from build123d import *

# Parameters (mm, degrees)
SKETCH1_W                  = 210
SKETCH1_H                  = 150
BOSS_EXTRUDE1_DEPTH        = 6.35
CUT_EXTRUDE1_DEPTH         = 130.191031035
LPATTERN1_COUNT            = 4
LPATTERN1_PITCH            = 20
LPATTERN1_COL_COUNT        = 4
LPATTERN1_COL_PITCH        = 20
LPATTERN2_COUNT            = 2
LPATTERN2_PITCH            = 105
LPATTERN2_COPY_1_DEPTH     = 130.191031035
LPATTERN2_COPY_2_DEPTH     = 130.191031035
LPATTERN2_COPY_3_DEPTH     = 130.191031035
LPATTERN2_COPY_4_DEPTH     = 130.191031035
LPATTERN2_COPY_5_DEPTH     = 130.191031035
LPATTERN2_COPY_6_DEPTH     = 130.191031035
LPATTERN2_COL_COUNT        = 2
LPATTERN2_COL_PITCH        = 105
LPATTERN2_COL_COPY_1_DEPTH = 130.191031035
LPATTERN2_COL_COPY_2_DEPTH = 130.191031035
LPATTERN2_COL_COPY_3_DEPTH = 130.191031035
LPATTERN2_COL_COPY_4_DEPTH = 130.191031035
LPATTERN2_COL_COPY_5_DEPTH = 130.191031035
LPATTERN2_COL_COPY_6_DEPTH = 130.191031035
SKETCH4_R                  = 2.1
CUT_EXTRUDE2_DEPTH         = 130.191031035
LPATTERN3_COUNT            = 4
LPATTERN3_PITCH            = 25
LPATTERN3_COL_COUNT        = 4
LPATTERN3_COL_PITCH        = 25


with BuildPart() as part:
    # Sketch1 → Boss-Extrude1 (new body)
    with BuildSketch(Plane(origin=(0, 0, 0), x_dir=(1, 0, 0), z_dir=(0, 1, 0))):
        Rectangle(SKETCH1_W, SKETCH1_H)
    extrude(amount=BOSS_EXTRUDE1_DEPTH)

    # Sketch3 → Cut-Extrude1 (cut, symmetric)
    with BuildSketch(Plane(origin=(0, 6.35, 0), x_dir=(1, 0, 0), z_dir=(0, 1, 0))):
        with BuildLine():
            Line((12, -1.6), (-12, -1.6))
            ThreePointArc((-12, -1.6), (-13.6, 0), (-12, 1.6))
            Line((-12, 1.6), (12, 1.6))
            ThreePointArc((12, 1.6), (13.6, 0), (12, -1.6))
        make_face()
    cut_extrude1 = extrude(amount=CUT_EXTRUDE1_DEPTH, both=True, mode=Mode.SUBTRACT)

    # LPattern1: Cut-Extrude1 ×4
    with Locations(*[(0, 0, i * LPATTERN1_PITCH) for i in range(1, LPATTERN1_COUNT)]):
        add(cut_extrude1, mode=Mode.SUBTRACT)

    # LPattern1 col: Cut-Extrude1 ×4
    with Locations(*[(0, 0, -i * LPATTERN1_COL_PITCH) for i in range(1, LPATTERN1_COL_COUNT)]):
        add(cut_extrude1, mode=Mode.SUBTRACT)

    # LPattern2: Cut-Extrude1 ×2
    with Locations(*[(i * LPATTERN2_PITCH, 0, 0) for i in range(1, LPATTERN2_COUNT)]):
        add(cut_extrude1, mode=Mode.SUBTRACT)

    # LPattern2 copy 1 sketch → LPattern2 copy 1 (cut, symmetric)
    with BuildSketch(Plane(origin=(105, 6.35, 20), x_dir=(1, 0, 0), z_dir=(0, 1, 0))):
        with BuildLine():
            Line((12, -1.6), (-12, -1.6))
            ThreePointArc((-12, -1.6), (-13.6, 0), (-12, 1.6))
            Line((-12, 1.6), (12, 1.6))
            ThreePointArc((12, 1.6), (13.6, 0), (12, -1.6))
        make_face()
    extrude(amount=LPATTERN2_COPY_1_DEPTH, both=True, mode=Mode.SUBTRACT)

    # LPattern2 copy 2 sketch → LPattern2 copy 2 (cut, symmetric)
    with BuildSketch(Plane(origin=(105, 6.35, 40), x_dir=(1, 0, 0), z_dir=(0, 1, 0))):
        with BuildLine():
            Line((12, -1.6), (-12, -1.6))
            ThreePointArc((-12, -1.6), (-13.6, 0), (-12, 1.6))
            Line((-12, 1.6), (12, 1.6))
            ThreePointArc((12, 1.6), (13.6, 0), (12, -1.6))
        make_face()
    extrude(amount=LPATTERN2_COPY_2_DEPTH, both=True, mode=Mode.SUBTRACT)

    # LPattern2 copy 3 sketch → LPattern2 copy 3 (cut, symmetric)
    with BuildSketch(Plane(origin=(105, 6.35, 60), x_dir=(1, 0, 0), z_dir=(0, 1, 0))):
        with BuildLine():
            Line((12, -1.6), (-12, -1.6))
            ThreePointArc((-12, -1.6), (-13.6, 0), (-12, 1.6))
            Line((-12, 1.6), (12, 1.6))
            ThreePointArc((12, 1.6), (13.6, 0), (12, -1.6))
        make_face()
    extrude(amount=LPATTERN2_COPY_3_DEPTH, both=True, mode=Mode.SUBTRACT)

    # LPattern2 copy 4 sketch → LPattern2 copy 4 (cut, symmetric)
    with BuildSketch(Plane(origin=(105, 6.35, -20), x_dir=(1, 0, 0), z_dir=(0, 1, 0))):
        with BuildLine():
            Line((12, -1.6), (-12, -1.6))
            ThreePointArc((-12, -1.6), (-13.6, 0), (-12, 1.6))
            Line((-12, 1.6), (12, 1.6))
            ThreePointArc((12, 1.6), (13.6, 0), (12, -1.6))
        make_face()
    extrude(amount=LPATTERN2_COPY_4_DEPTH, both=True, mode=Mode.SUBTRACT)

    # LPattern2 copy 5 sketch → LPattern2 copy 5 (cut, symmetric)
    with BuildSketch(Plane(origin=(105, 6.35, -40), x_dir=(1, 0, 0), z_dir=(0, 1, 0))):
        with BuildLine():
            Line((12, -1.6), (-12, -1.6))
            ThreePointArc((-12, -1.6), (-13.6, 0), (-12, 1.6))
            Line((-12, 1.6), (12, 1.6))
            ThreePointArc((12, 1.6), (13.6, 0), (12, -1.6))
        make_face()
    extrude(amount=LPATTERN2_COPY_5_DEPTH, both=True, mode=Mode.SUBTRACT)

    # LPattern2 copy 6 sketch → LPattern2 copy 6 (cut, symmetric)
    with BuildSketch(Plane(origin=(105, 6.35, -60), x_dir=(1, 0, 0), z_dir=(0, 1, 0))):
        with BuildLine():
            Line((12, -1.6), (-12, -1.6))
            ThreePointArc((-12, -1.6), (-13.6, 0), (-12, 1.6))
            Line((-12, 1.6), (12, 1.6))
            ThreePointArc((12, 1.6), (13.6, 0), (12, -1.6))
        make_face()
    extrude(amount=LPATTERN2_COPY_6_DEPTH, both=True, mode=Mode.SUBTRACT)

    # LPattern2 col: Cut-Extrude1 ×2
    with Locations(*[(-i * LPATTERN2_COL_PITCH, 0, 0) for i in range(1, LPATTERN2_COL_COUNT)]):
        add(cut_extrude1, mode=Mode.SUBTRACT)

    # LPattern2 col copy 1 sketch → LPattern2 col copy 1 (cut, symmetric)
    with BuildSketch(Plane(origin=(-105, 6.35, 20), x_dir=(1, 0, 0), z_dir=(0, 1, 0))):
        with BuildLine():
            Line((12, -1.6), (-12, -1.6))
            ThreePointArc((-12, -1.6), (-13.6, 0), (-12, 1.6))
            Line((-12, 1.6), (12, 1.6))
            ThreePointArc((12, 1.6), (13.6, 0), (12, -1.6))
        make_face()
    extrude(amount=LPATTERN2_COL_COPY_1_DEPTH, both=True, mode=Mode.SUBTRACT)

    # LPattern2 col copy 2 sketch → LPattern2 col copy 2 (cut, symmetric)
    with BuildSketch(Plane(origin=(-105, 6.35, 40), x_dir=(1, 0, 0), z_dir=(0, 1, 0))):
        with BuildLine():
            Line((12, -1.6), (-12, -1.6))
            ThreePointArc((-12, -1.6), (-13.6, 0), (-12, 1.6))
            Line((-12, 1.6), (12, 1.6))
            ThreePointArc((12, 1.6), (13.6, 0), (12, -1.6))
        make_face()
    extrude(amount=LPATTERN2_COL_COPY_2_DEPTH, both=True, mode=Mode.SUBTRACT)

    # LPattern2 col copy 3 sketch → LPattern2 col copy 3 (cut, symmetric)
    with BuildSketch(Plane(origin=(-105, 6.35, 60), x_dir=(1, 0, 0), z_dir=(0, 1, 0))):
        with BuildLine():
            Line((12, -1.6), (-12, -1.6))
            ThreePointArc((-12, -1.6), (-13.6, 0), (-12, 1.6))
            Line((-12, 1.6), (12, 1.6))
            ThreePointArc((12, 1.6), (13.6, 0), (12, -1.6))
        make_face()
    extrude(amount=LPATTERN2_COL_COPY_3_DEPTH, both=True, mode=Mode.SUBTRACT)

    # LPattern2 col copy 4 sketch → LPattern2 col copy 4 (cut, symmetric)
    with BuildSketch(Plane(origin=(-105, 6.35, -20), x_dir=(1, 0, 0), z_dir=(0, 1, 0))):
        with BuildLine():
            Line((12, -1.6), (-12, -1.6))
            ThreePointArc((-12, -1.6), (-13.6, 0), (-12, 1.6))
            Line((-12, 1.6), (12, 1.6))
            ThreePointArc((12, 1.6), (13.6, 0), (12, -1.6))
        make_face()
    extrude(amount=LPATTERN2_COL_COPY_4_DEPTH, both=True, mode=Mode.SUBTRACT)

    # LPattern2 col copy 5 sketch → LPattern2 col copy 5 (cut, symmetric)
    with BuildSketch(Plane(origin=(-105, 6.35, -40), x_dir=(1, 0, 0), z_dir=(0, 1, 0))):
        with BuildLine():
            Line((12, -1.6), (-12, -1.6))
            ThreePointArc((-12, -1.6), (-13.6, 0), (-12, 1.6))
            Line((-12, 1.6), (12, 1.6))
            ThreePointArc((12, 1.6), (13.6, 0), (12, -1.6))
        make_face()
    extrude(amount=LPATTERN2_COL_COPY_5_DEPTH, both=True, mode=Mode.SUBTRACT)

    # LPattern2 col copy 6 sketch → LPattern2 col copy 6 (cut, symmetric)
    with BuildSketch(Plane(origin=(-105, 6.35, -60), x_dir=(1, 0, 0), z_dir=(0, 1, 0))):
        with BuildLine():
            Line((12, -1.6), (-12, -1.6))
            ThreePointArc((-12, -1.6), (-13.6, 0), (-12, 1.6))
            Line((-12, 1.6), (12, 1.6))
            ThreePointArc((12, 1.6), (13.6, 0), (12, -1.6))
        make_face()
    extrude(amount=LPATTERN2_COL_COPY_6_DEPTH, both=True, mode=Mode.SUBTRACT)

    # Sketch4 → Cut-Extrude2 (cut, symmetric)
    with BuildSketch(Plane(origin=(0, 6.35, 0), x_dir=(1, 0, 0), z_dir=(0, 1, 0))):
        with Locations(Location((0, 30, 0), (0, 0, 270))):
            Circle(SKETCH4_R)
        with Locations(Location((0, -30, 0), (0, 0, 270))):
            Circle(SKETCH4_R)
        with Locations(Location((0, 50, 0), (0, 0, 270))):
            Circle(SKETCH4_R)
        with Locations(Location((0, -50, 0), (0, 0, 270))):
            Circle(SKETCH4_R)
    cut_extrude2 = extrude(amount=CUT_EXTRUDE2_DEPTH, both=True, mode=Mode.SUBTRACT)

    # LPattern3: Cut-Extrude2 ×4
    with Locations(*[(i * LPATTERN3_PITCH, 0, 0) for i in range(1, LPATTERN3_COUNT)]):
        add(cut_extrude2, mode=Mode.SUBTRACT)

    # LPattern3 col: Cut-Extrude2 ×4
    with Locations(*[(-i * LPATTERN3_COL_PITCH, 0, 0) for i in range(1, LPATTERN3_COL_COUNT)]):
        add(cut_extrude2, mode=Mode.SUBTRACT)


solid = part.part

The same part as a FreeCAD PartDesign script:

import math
import FreeCAD as App
import Part
import Sketcher
Q = App.Units.Quantity

doc = App.newDocument("Part")
body = doc.addObject("PartDesign::Body", "Body")

# Sketch on XZ plane
sketch1 = body.newObject("Sketcher::SketchObject", "Sketch")
sketch1.AttachmentSupport = (doc.getObject("XZ_Plane"), [""])
sketch1.MapMode = "FlatFace"
sketch1.addGeometry(Part.LineSegment(App.Vector(-105, -75, 0), App.Vector(-105, 75, 0)), False)
sketch1.addGeometry(Part.LineSegment(App.Vector(-105, 75, 0), App.Vector(105, 75, 0)), False)
sketch1.addGeometry(Part.LineSegment(App.Vector(105, 75, 0), App.Vector(105, -75, 0)), False)
sketch1.addGeometry(Part.LineSegment(App.Vector(105, -75, 0), App.Vector(-105, -75, 0)), False)
sketch1.addConstraint(Sketcher.Constraint("Coincident", 0, 2, 1, 1))
sketch1.addConstraint(Sketcher.Constraint("Coincident", 1, 2, 2, 1))
sketch1.addConstraint(Sketcher.Constraint("Coincident", 2, 2, 3, 1))
sketch1.addConstraint(Sketcher.Constraint("Coincident", 3, 2, 0, 1))
sketch1.addConstraint(Sketcher.Constraint("Vertical", 0))
sketch1.addConstraint(Sketcher.Constraint("Horizontal", 1))
sketch1.addConstraint(Sketcher.Constraint("Vertical", 2))
sketch1.addConstraint(Sketcher.Constraint("Horizontal", 3))
sketch1.addConstraint(Sketcher.Constraint("Symmetric", 0, 2, 2, 2, -1, 1))
sketch1.addConstraint(Sketcher.Constraint("DistanceX", 1, 1, 1, 2, Q("210 mm")))
sketch1.addConstraint(Sketcher.Constraint("DistanceY", 0, 1, 0, 2, Q("150 mm")))
pad1 = body.newObject("PartDesign::Pad", "Pad")
pad1.Profile = sketch1
pad1.Length = 6.35
pad1.Reversed = True

# Sketch on XZ plane
sketch2 = body.newObject("Sketcher::SketchObject", "Sketch001")
sketch2.AttachmentSupport = (doc.getObject("XZ_Plane"), [""])
sketch2.MapMode = "FlatFace"
sketch2.AttachmentOffset = App.Placement(App.Vector(0, 0, -6.35), App.Rotation())
sketch2.addGeometry(Part.LineSegment(App.Vector(-12, 1.6, 0), App.Vector(12, 1.6, 0)), False)
sketch2.addGeometry(Part.ArcOfCircle(Part.Circle(App.Vector(12, 0, 0), App.Vector(0, 0, 1), 1.6), math.radians(-90), math.radians(90)), False)
sketch2.addGeometry(Part.LineSegment(App.Vector(12, -1.6, 0), App.Vector(-12, -1.6, 0)), False)
sketch2.addGeometry(Part.ArcOfCircle(Part.Circle(App.Vector(-12, 0, 0), App.Vector(0, 0, 1), 1.6), math.radians(90), math.radians(270)), False)
sketch2.addConstraint(Sketcher.Constraint("Tangent", 0, 2, 1, 2))
sketch2.addConstraint(Sketcher.Constraint("Tangent", 1, 1, 2, 1))
sketch2.addConstraint(Sketcher.Constraint("Tangent", 2, 2, 3, 2))
sketch2.addConstraint(Sketcher.Constraint("Tangent", 3, 1, 0, 1))
sketch2.addConstraint(Sketcher.Constraint("Horizontal", 0))
sketch2.addConstraint(Sketcher.Constraint("Horizontal", 2))
sketch2.addConstraint(Sketcher.Constraint("Symmetric", 1, 3, 3, 3, -1, 1))
sketch2.addConstraint(Sketcher.Constraint("Radius", 1, Q("1.6 mm")))
sketch2.addConstraint(Sketcher.Constraint("DistanceX", 0, 1, 0, 2, Q("24 mm")))
pocket1 = body.newObject("PartDesign::Pocket", "Pocket")
pocket1.Profile = sketch2
pocket1.Length = 260.382062
pocket1.Midplane = True
doc.recompute()

linearpattern = body.newObject("PartDesign::LinearPattern", "LinearPattern")
linearpattern.Originals = [pocket1]
linearpattern.Direction = (doc.getObject("Z_Axis"), [""])
linearpattern.Mode = "offset"
linearpattern.Offset = 20
linearpattern.Occurrences = 4
body.Tip = linearpattern
doc.recompute()

linearpattern2 = body.newObject("PartDesign::LinearPattern", "LinearPattern001")
linearpattern2.Originals = [pocket1]
linearpattern2.Direction = (doc.getObject("Z_Axis"), [""])
linearpattern2.Mode = "offset"
linearpattern2.Offset = 20
linearpattern2.Occurrences = 4
linearpattern2.Reversed = True
body.Tip = linearpattern2
doc.recompute()

linearpattern3 = body.newObject("PartDesign::LinearPattern", "LinearPattern002")
linearpattern3.Originals = [pocket1]
linearpattern3.Direction = (doc.getObject("X_Axis"), [""])
linearpattern3.Mode = "offset"
linearpattern3.Offset = 105
linearpattern3.Occurrences = 2
body.Tip = linearpattern3

# Sketch on XZ plane
sketch3 = body.newObject("Sketcher::SketchObject", "Sketch002")
sketch3.AttachmentSupport = (doc.getObject("XZ_Plane"), [""])
sketch3.MapMode = "FlatFace"
sketch3.AttachmentOffset = App.Placement(App.Vector(0, 0, -6.35), App.Rotation())
sketch3.addGeometry(Part.LineSegment(App.Vector(93, 21.6, 0), App.Vector(117, 21.6, 0)), False)
sketch3.addGeometry(Part.ArcOfCircle(Part.Circle(App.Vector(117, 20, 0), App.Vector(0, 0, 1), 1.6), math.radians(-90), math.radians(90)), False)
sketch3.addGeometry(Part.LineSegment(App.Vector(117, 18.4, 0), App.Vector(93, 18.4, 0)), False)
sketch3.addGeometry(Part.ArcOfCircle(Part.Circle(App.Vector(93, 20, 0), App.Vector(0, 0, 1), 1.6), math.radians(90), math.radians(270)), False)
sketch3.addConstraint(Sketcher.Constraint("Tangent", 0, 2, 1, 2))
sketch3.addConstraint(Sketcher.Constraint("Tangent", 1, 1, 2, 1))
sketch3.addConstraint(Sketcher.Constraint("Tangent", 2, 2, 3, 2))
sketch3.addConstraint(Sketcher.Constraint("Tangent", 3, 1, 0, 1))
sketch3.addConstraint(Sketcher.Constraint("Horizontal", 0))
sketch3.addConstraint(Sketcher.Constraint("Horizontal", 2))
sketch3.addConstraint(Sketcher.Constraint("Radius", 1, Q("1.6 mm")))
sketch3.addConstraint(Sketcher.Constraint("DistanceX", 0, 1, 0, 2, Q("24 mm")))
sketch3.addConstraint(Sketcher.Constraint("DistanceX", -1, 1, 1, 3, Q("117 mm")))
sketch3.addConstraint(Sketcher.Constraint("DistanceY", -1, 1, 1, 3, Q("20 mm")))
pocket2 = body.newObject("PartDesign::Pocket", "Pocket001")
pocket2.Profile = sketch3
pocket2.Length = 260.382062
pocket2.Midplane = True

# Sketch on XZ plane
sketch4 = body.newObject("Sketcher::SketchObject", "Sketch003")
sketch4.AttachmentSupport = (doc.getObject("XZ_Plane"), [""])
sketch4.MapMode = "FlatFace"
sketch4.AttachmentOffset = App.Placement(App.Vector(0, 0, -6.35), App.Rotation())
sketch4.addGeometry(Part.LineSegment(App.Vector(93, 41.6, 0), App.Vector(117, 41.6, 0)), False)
sketch4.addGeometry(Part.ArcOfCircle(Part.Circle(App.Vector(117, 40, 0), App.Vector(0, 0, 1), 1.6), math.radians(-90), math.radians(90)), False)
sketch4.addGeometry(Part.LineSegment(App.Vector(117, 38.4, 0), App.Vector(93, 38.4, 0)), False)
sketch4.addGeometry(Part.ArcOfCircle(Part.Circle(App.Vector(93, 40, 0), App.Vector(0, 0, 1), 1.6), math.radians(90), math.radians(270)), False)
sketch4.addConstraint(Sketcher.Constraint("Tangent", 0, 2, 1, 2))
sketch4.addConstraint(Sketcher.Constraint("Tangent", 1, 1, 2, 1))
sketch4.addConstraint(Sketcher.Constraint("Tangent", 2, 2, 3, 2))
sketch4.addConstraint(Sketcher.Constraint("Tangent", 3, 1, 0, 1))
sketch4.addConstraint(Sketcher.Constraint("Horizontal", 0))
sketch4.addConstraint(Sketcher.Constraint("Horizontal", 2))
sketch4.addConstraint(Sketcher.Constraint("Radius", 1, Q("1.6 mm")))
sketch4.addConstraint(Sketcher.Constraint("DistanceX", 0, 1, 0, 2, Q("24 mm")))
sketch4.addConstraint(Sketcher.Constraint("DistanceX", -1, 1, 1, 3, Q("117 mm")))
sketch4.addConstraint(Sketcher.Constraint("DistanceY", -1, 1, 1, 3, Q("40 mm")))
pocket3 = body.newObject("PartDesign::Pocket", "Pocket002")
pocket3.Profile = sketch4
pocket3.Length = 260.382062
pocket3.Midplane = True

# Sketch on XZ plane
sketch5 = body.newObject("Sketcher::SketchObject", "Sketch004")
sketch5.AttachmentSupport = (doc.getObject("XZ_Plane"), [""])
sketch5.MapMode = "FlatFace"
sketch5.AttachmentOffset = App.Placement(App.Vector(0, 0, -6.35), App.Rotation())
sketch5.addGeometry(Part.LineSegment(App.Vector(93, 61.6, 0), App.Vector(117, 61.6, 0)), False)
sketch5.addGeometry(Part.ArcOfCircle(Part.Circle(App.Vector(117, 60, 0), App.Vector(0, 0, 1), 1.6), math.radians(-90), math.radians(90)), False)
sketch5.addGeometry(Part.LineSegment(App.Vector(117, 58.4, 0), App.Vector(93, 58.4, 0)), False)
sketch5.addGeometry(Part.ArcOfCircle(Part.Circle(App.Vector(93, 60, 0), App.Vector(0, 0, 1), 1.6), math.radians(90), math.radians(270)), False)
sketch5.addConstraint(Sketcher.Constraint("Tangent", 0, 2, 1, 2))
sketch5.addConstraint(Sketcher.Constraint("Tangent", 1, 1, 2, 1))
sketch5.addConstraint(Sketcher.Constraint("Tangent", 2, 2, 3, 2))
sketch5.addConstraint(Sketcher.Constraint("Tangent", 3, 1, 0, 1))
sketch5.addConstraint(Sketcher.Constraint("Horizontal", 0))
sketch5.addConstraint(Sketcher.Constraint("Horizontal", 2))
sketch5.addConstraint(Sketcher.Constraint("Radius", 1, Q("1.6 mm")))
sketch5.addConstraint(Sketcher.Constraint("DistanceX", 0, 1, 0, 2, Q("24 mm")))
sketch5.addConstraint(Sketcher.Constraint("DistanceX", -1, 1, 1, 3, Q("117 mm")))
sketch5.addConstraint(Sketcher.Constraint("DistanceY", -1, 1, 1, 3, Q("60 mm")))
pocket4 = body.newObject("PartDesign::Pocket", "Pocket003")
pocket4.Profile = sketch5
pocket4.Length = 260.382062
pocket4.Midplane = True

# Sketch on XZ plane
sketch6 = body.newObject("Sketcher::SketchObject", "Sketch005")
sketch6.AttachmentSupport = (doc.getObject("XZ_Plane"), [""])
sketch6.MapMode = "FlatFace"
sketch6.AttachmentOffset = App.Placement(App.Vector(0, 0, -6.35), App.Rotation())
sketch6.addGeometry(Part.LineSegment(App.Vector(93, -18.4, 0), App.Vector(117, -18.4, 0)), False)
sketch6.addGeometry(Part.ArcOfCircle(Part.Circle(App.Vector(117, -20, 0), App.Vector(0, 0, 1), 1.6), math.radians(-90), math.radians(90)), False)
sketch6.addGeometry(Part.LineSegment(App.Vector(117, -21.6, 0), App.Vector(93, -21.6, 0)), False)
sketch6.addGeometry(Part.ArcOfCircle(Part.Circle(App.Vector(93, -20, 0), App.Vector(0, 0, 1), 1.6), math.radians(90), math.radians(270)), False)
sketch6.addConstraint(Sketcher.Constraint("Tangent", 0, 2, 1, 2))
sketch6.addConstraint(Sketcher.Constraint("Tangent", 1, 1, 2, 1))
sketch6.addConstraint(Sketcher.Constraint("Tangent", 2, 2, 3, 2))
sketch6.addConstraint(Sketcher.Constraint("Tangent", 3, 1, 0, 1))
sketch6.addConstraint(Sketcher.Constraint("Horizontal", 0))
sketch6.addConstraint(Sketcher.Constraint("Horizontal", 2))
sketch6.addConstraint(Sketcher.Constraint("Radius", 1, Q("1.6 mm")))
sketch6.addConstraint(Sketcher.Constraint("DistanceX", 0, 1, 0, 2, Q("24 mm")))
sketch6.addConstraint(Sketcher.Constraint("DistanceX", -1, 1, 1, 3, Q("117 mm")))
sketch6.addConstraint(Sketcher.Constraint("DistanceY", 1, 3, -1, 1, Q("20 mm")))
pocket5 = body.newObject("PartDesign::Pocket", "Pocket004")
pocket5.Profile = sketch6
pocket5.Length = 260.382062
pocket5.Midplane = True

# Sketch on XZ plane
sketch7 = body.newObject("Sketcher::SketchObject", "Sketch006")
sketch7.AttachmentSupport = (doc.getObject("XZ_Plane"), [""])
sketch7.MapMode = "FlatFace"
sketch7.AttachmentOffset = App.Placement(App.Vector(0, 0, -6.35), App.Rotation())
sketch7.addGeometry(Part.LineSegment(App.Vector(93, -38.4, 0), App.Vector(117, -38.4, 0)), False)
sketch7.addGeometry(Part.ArcOfCircle(Part.Circle(App.Vector(117, -40, 0), App.Vector(0, 0, 1), 1.6), math.radians(-90), math.radians(90)), False)
sketch7.addGeometry(Part.LineSegment(App.Vector(117, -41.6, 0), App.Vector(93, -41.6, 0)), False)
sketch7.addGeometry(Part.ArcOfCircle(Part.Circle(App.Vector(93, -40, 0), App.Vector(0, 0, 1), 1.6), math.radians(90), math.radians(270)), False)
sketch7.addConstraint(Sketcher.Constraint("Tangent", 0, 2, 1, 2))
sketch7.addConstraint(Sketcher.Constraint("Tangent", 1, 1, 2, 1))
sketch7.addConstraint(Sketcher.Constraint("Tangent", 2, 2, 3, 2))
sketch7.addConstraint(Sketcher.Constraint("Tangent", 3, 1, 0, 1))
sketch7.addConstraint(Sketcher.Constraint("Horizontal", 0))
sketch7.addConstraint(Sketcher.Constraint("Horizontal", 2))
sketch7.addConstraint(Sketcher.Constraint("Radius", 1, Q("1.6 mm")))
sketch7.addConstraint(Sketcher.Constraint("DistanceX", 0, 1, 0, 2, Q("24 mm")))
sketch7.addConstraint(Sketcher.Constraint("DistanceX", -1, 1, 1, 3, Q("117 mm")))
sketch7.addConstraint(Sketcher.Constraint("DistanceY", 1, 3, -1, 1, Q("40 mm")))
pocket6 = body.newObject("PartDesign::Pocket", "Pocket005")
pocket6.Profile = sketch7
pocket6.Length = 260.382062
pocket6.Midplane = True

# Sketch on XZ plane
sketch8 = body.newObject("Sketcher::SketchObject", "Sketch007")
sketch8.AttachmentSupport = (doc.getObject("XZ_Plane"), [""])
sketch8.MapMode = "FlatFace"
sketch8.AttachmentOffset = App.Placement(App.Vector(0, 0, -6.35), App.Rotation())
sketch8.addGeometry(Part.LineSegment(App.Vector(93, -58.4, 0), App.Vector(117, -58.4, 0)), False)
sketch8.addGeometry(Part.ArcOfCircle(Part.Circle(App.Vector(117, -60, 0), App.Vector(0, 0, 1), 1.6), math.radians(-90), math.radians(90)), False)
sketch8.addGeometry(Part.LineSegment(App.Vector(117, -61.6, 0), App.Vector(93, -61.6, 0)), False)
sketch8.addGeometry(Part.ArcOfCircle(Part.Circle(App.Vector(93, -60, 0), App.Vector(0, 0, 1), 1.6), math.radians(90), math.radians(270)), False)
sketch8.addConstraint(Sketcher.Constraint("Tangent", 0, 2, 1, 2))
sketch8.addConstraint(Sketcher.Constraint("Tangent", 1, 1, 2, 1))
sketch8.addConstraint(Sketcher.Constraint("Tangent", 2, 2, 3, 2))
sketch8.addConstraint(Sketcher.Constraint("Tangent", 3, 1, 0, 1))
sketch8.addConstraint(Sketcher.Constraint("Horizontal", 0))
sketch8.addConstraint(Sketcher.Constraint("Horizontal", 2))
sketch8.addConstraint(Sketcher.Constraint("Radius", 1, Q("1.6 mm")))
sketch8.addConstraint(Sketcher.Constraint("DistanceX", 0, 1, 0, 2, Q("24 mm")))
sketch8.addConstraint(Sketcher.Constraint("DistanceX", -1, 1, 1, 3, Q("117 mm")))
sketch8.addConstraint(Sketcher.Constraint("DistanceY", 1, 3, -1, 1, Q("60 mm")))
pocket7 = body.newObject("PartDesign::Pocket", "Pocket006")
pocket7.Profile = sketch8
pocket7.Length = 260.382062
pocket7.Midplane = True
doc.recompute()

linearpattern4 = body.newObject("PartDesign::LinearPattern", "LinearPattern003")
linearpattern4.Originals = [pocket1]
linearpattern4.Direction = (doc.getObject("X_Axis"), [""])
linearpattern4.Mode = "offset"
linearpattern4.Offset = 105
linearpattern4.Occurrences = 2
linearpattern4.Reversed = True
body.Tip = linearpattern4

# Sketch on XZ plane
sketch9 = body.newObject("Sketcher::SketchObject", "Sketch008")
sketch9.AttachmentSupport = (doc.getObject("XZ_Plane"), [""])
sketch9.MapMode = "FlatFace"
sketch9.AttachmentOffset = App.Placement(App.Vector(0, 0, -6.35), App.Rotation())
sketch9.addGeometry(Part.LineSegment(App.Vector(-117, 21.6, 0), App.Vector(-93, 21.6, 0)), False)
sketch9.addGeometry(Part.ArcOfCircle(Part.Circle(App.Vector(-93, 20, 0), App.Vector(0, 0, 1), 1.6), math.radians(-90), math.radians(90)), False)
sketch9.addGeometry(Part.LineSegment(App.Vector(-93, 18.4, 0), App.Vector(-117, 18.4, 0)), False)
sketch9.addGeometry(Part.ArcOfCircle(Part.Circle(App.Vector(-117, 20, 0), App.Vector(0, 0, 1), 1.6), math.radians(90), math.radians(270)), False)
sketch9.addConstraint(Sketcher.Constraint("Tangent", 0, 2, 1, 2))
sketch9.addConstraint(Sketcher.Constraint("Tangent", 1, 1, 2, 1))
sketch9.addConstraint(Sketcher.Constraint("Tangent", 2, 2, 3, 2))
sketch9.addConstraint(Sketcher.Constraint("Tangent", 3, 1, 0, 1))
sketch9.addConstraint(Sketcher.Constraint("Horizontal", 0))
sketch9.addConstraint(Sketcher.Constraint("Horizontal", 2))
sketch9.addConstraint(Sketcher.Constraint("Radius", 1, Q("1.6 mm")))
sketch9.addConstraint(Sketcher.Constraint("DistanceX", 0, 1, 0, 2, Q("24 mm")))
sketch9.addConstraint(Sketcher.Constraint("DistanceX", 1, 3, -1, 1, Q("93 mm")))
sketch9.addConstraint(Sketcher.Constraint("DistanceY", -1, 1, 1, 3, Q("20 mm")))
pocket8 = body.newObject("PartDesign::Pocket", "Pocket007")
pocket8.Profile = sketch9
pocket8.Length = 260.382062
pocket8.Midplane = True

# Sketch on XZ plane
sketch10 = body.newObject("Sketcher::SketchObject", "Sketch009")
sketch10.AttachmentSupport = (doc.getObject("XZ_Plane"), [""])
sketch10.MapMode = "FlatFace"
sketch10.AttachmentOffset = App.Placement(App.Vector(0, 0, -6.35), App.Rotation())
sketch10.addGeometry(Part.LineSegment(App.Vector(-117, 41.6, 0), App.Vector(-93, 41.6, 0)), False)
sketch10.addGeometry(Part.ArcOfCircle(Part.Circle(App.Vector(-93, 40, 0), App.Vector(0, 0, 1), 1.6), math.radians(-90), math.radians(90)), False)
sketch10.addGeometry(Part.LineSegment(App.Vector(-93, 38.4, 0), App.Vector(-117, 38.4, 0)), False)
sketch10.addGeometry(Part.ArcOfCircle(Part.Circle(App.Vector(-117, 40, 0), App.Vector(0, 0, 1), 1.6), math.radians(90), math.radians(270)), False)
sketch10.addConstraint(Sketcher.Constraint("Tangent", 0, 2, 1, 2))
sketch10.addConstraint(Sketcher.Constraint("Tangent", 1, 1, 2, 1))
sketch10.addConstraint(Sketcher.Constraint("Tangent", 2, 2, 3, 2))
sketch10.addConstraint(Sketcher.Constraint("Tangent", 3, 1, 0, 1))
sketch10.addConstraint(Sketcher.Constraint("Horizontal", 0))
sketch10.addConstraint(Sketcher.Constraint("Horizontal", 2))
sketch10.addConstraint(Sketcher.Constraint("Radius", 1, Q("1.6 mm")))
sketch10.addConstraint(Sketcher.Constraint("DistanceX", 0, 1, 0, 2, Q("24 mm")))
sketch10.addConstraint(Sketcher.Constraint("DistanceX", 1, 3, -1, 1, Q("93 mm")))
sketch10.addConstraint(Sketcher.Constraint("DistanceY", -1, 1, 1, 3, Q("40 mm")))
pocket9 = body.newObject("PartDesign::Pocket", "Pocket008")
pocket9.Profile = sketch10
pocket9.Length = 260.382062
pocket9.Midplane = True

# Sketch on XZ plane
sketch11 = body.newObject("Sketcher::SketchObject", "Sketch010")
sketch11.AttachmentSupport = (doc.getObject("XZ_Plane"), [""])
sketch11.MapMode = "FlatFace"
sketch11.AttachmentOffset = App.Placement(App.Vector(0, 0, -6.35), App.Rotation())
sketch11.addGeometry(Part.LineSegment(App.Vector(-117, 61.6, 0), App.Vector(-93, 61.6, 0)), False)
sketch11.addGeometry(Part.ArcOfCircle(Part.Circle(App.Vector(-93, 60, 0), App.Vector(0, 0, 1), 1.6), math.radians(-90), math.radians(90)), False)
sketch11.addGeometry(Part.LineSegment(App.Vector(-93, 58.4, 0), App.Vector(-117, 58.4, 0)), False)
sketch11.addGeometry(Part.ArcOfCircle(Part.Circle(App.Vector(-117, 60, 0), App.Vector(0, 0, 1), 1.6), math.radians(90), math.radians(270)), False)
sketch11.addConstraint(Sketcher.Constraint("Tangent", 0, 2, 1, 2))
sketch11.addConstraint(Sketcher.Constraint("Tangent", 1, 1, 2, 1))
sketch11.addConstraint(Sketcher.Constraint("Tangent", 2, 2, 3, 2))
sketch11.addConstraint(Sketcher.Constraint("Tangent", 3, 1, 0, 1))
sketch11.addConstraint(Sketcher.Constraint("Horizontal", 0))
sketch11.addConstraint(Sketcher.Constraint("Horizontal", 2))
sketch11.addConstraint(Sketcher.Constraint("Radius", 1, Q("1.6 mm")))
sketch11.addConstraint(Sketcher.Constraint("DistanceX", 0, 1, 0, 2, Q("24 mm")))
sketch11.addConstraint(Sketcher.Constraint("DistanceX", 1, 3, -1, 1, Q("93 mm")))
sketch11.addConstraint(Sketcher.Constraint("DistanceY", -1, 1, 1, 3, Q("60 mm")))
pocket10 = body.newObject("PartDesign::Pocket", "Pocket009")
pocket10.Profile = sketch11
pocket10.Length = 260.382062
pocket10.Midplane = True

# Sketch on XZ plane
sketch12 = body.newObject("Sketcher::SketchObject", "Sketch011")
sketch12.AttachmentSupport = (doc.getObject("XZ_Plane"), [""])
sketch12.MapMode = "FlatFace"
sketch12.AttachmentOffset = App.Placement(App.Vector(0, 0, -6.35), App.Rotation())
sketch12.addGeometry(Part.LineSegment(App.Vector(-117, -18.4, 0), App.Vector(-93, -18.4, 0)), False)
sketch12.addGeometry(Part.ArcOfCircle(Part.Circle(App.Vector(-93, -20, 0), App.Vector(0, 0, 1), 1.6), math.radians(-90), math.radians(90)), False)
sketch12.addGeometry(Part.LineSegment(App.Vector(-93, -21.6, 0), App.Vector(-117, -21.6, 0)), False)
sketch12.addGeometry(Part.ArcOfCircle(Part.Circle(App.Vector(-117, -20, 0), App.Vector(0, 0, 1), 1.6), math.radians(90), math.radians(270)), False)
sketch12.addConstraint(Sketcher.Constraint("Tangent", 0, 2, 1, 2))
sketch12.addConstraint(Sketcher.Constraint("Tangent", 1, 1, 2, 1))
sketch12.addConstraint(Sketcher.Constraint("Tangent", 2, 2, 3, 2))
sketch12.addConstraint(Sketcher.Constraint("Tangent", 3, 1, 0, 1))
sketch12.addConstraint(Sketcher.Constraint("Horizontal", 0))
sketch12.addConstraint(Sketcher.Constraint("Horizontal", 2))
sketch12.addConstraint(Sketcher.Constraint("Radius", 1, Q("1.6 mm")))
sketch12.addConstraint(Sketcher.Constraint("DistanceX", 0, 1, 0, 2, Q("24 mm")))
sketch12.addConstraint(Sketcher.Constraint("DistanceX", 1, 3, -1, 1, Q("93 mm")))
sketch12.addConstraint(Sketcher.Constraint("DistanceY", 1, 3, -1, 1, Q("20 mm")))
pocket11 = body.newObject("PartDesign::Pocket", "Pocket010")
pocket11.Profile = sketch12
pocket11.Length = 260.382062
pocket11.Midplane = True

# Sketch on XZ plane
sketch13 = body.newObject("Sketcher::SketchObject", "Sketch012")
sketch13.AttachmentSupport = (doc.getObject("XZ_Plane"), [""])
sketch13.MapMode = "FlatFace"
sketch13.AttachmentOffset = App.Placement(App.Vector(0, 0, -6.35), App.Rotation())
sketch13.addGeometry(Part.LineSegment(App.Vector(-117, -38.4, 0), App.Vector(-93, -38.4, 0)), False)
sketch13.addGeometry(Part.ArcOfCircle(Part.Circle(App.Vector(-93, -40, 0), App.Vector(0, 0, 1), 1.6), math.radians(-90), math.radians(90)), False)
sketch13.addGeometry(Part.LineSegment(App.Vector(-93, -41.6, 0), App.Vector(-117, -41.6, 0)), False)
sketch13.addGeometry(Part.ArcOfCircle(Part.Circle(App.Vector(-117, -40, 0), App.Vector(0, 0, 1), 1.6), math.radians(90), math.radians(270)), False)
sketch13.addConstraint(Sketcher.Constraint("Tangent", 0, 2, 1, 2))
sketch13.addConstraint(Sketcher.Constraint("Tangent", 1, 1, 2, 1))
sketch13.addConstraint(Sketcher.Constraint("Tangent", 2, 2, 3, 2))
sketch13.addConstraint(Sketcher.Constraint("Tangent", 3, 1, 0, 1))
sketch13.addConstraint(Sketcher.Constraint("Horizontal", 0))
sketch13.addConstraint(Sketcher.Constraint("Horizontal", 2))
sketch13.addConstraint(Sketcher.Constraint("Radius", 1, Q("1.6 mm")))
sketch13.addConstraint(Sketcher.Constraint("DistanceX", 0, 1, 0, 2, Q("24 mm")))
sketch13.addConstraint(Sketcher.Constraint("DistanceX", 1, 3, -1, 1, Q("93 mm")))
sketch13.addConstraint(Sketcher.Constraint("DistanceY", 1, 3, -1, 1, Q("40 mm")))
pocket12 = body.newObject("PartDesign::Pocket", "Pocket011")
pocket12.Profile = sketch13
pocket12.Length = 260.382062
pocket12.Midplane = True

# Sketch on XZ plane
sketch14 = body.newObject("Sketcher::SketchObject", "Sketch013")
sketch14.AttachmentSupport = (doc.getObject("XZ_Plane"), [""])
sketch14.MapMode = "FlatFace"
sketch14.AttachmentOffset = App.Placement(App.Vector(0, 0, -6.35), App.Rotation())
sketch14.addGeometry(Part.LineSegment(App.Vector(-117, -58.4, 0), App.Vector(-93, -58.4, 0)), False)
sketch14.addGeometry(Part.ArcOfCircle(Part.Circle(App.Vector(-93, -60, 0), App.Vector(0, 0, 1), 1.6), math.radians(-90), math.radians(90)), False)
sketch14.addGeometry(Part.LineSegment(App.Vector(-93, -61.6, 0), App.Vector(-117, -61.6, 0)), False)
sketch14.addGeometry(Part.ArcOfCircle(Part.Circle(App.Vector(-117, -60, 0), App.Vector(0, 0, 1), 1.6), math.radians(90), math.radians(270)), False)
sketch14.addConstraint(Sketcher.Constraint("Tangent", 0, 2, 1, 2))
sketch14.addConstraint(Sketcher.Constraint("Tangent", 1, 1, 2, 1))
sketch14.addConstraint(Sketcher.Constraint("Tangent", 2, 2, 3, 2))
sketch14.addConstraint(Sketcher.Constraint("Tangent", 3, 1, 0, 1))
sketch14.addConstraint(Sketcher.Constraint("Horizontal", 0))
sketch14.addConstraint(Sketcher.Constraint("Horizontal", 2))
sketch14.addConstraint(Sketcher.Constraint("Radius", 1, Q("1.6 mm")))
sketch14.addConstraint(Sketcher.Constraint("DistanceX", 0, 1, 0, 2, Q("24 mm")))
sketch14.addConstraint(Sketcher.Constraint("DistanceX", 1, 3, -1, 1, Q("93 mm")))
sketch14.addConstraint(Sketcher.Constraint("DistanceY", 1, 3, -1, 1, Q("60 mm")))
pocket13 = body.newObject("PartDesign::Pocket", "Pocket012")
pocket13.Profile = sketch14
pocket13.Length = 260.382062
pocket13.Midplane = True

# Sketch on XZ plane
sketch15 = body.newObject("Sketcher::SketchObject", "Sketch014")
sketch15.AttachmentSupport = (doc.getObject("XZ_Plane"), [""])
sketch15.MapMode = "FlatFace"
sketch15.AttachmentOffset = App.Placement(App.Vector(0, 0, -6.35), App.Rotation())
sketch15.addGeometry(Part.Circle(App.Vector(0, -30, 0), App.Vector(0, 0, 1), 2.1), False)
sketch15.addGeometry(Part.Circle(App.Vector(0, 30, 0), App.Vector(0, 0, 1), 2.1), False)
sketch15.addGeometry(Part.Circle(App.Vector(0, -50, 0), App.Vector(0, 0, 1), 2.1), False)
sketch15.addGeometry(Part.Circle(App.Vector(0, 50, 0), App.Vector(0, 0, 1), 2.1), False)
sketch15.addConstraint(Sketcher.Constraint("Equal", 0, 1))
sketch15.addConstraint(Sketcher.Constraint("Equal", 1, 2))
sketch15.addConstraint(Sketcher.Constraint("Equal", 2, 3))
sketch15.addConstraint(Sketcher.Constraint("Symmetric", 0, 3, 1, 3, -1, 1))
sketch15.addConstraint(Sketcher.Constraint("Symmetric", 2, 3, 3, 3, -1, 1))
sketch15.addConstraint(Sketcher.Constraint("PointOnObject", 0, 3, -2))
sketch15.addConstraint(Sketcher.Constraint("PointOnObject", 2, 3, -2))
sketch15.addConstraint(Sketcher.Constraint("Diameter", 0, Q("4.2 mm")))
sketch15.addConstraint(Sketcher.Constraint("DistanceY", 0, 3, -1, 1, Q("30 mm")))
sketch15.addConstraint(Sketcher.Constraint("DistanceY", 2, 3, -1, 1, Q("50 mm")))
pocket14 = body.newObject("PartDesign::Pocket", "Pocket013")
pocket14.Profile = sketch15
pocket14.Length = 260.382062
pocket14.Midplane = True
doc.recompute()

linearpattern5 = body.newObject("PartDesign::LinearPattern", "LinearPattern004")
linearpattern5.Originals = [pocket14]
linearpattern5.Direction = (doc.getObject("X_Axis"), [""])
linearpattern5.Mode = "offset"
linearpattern5.Offset = 25
linearpattern5.Occurrences = 4
body.Tip = linearpattern5
doc.recompute()

linearpattern6 = body.newObject("PartDesign::LinearPattern", "LinearPattern005")
linearpattern6.Originals = [pocket14]
linearpattern6.Direction = (doc.getObject("X_Axis"), [""])
linearpattern6.Mode = "offset"
linearpattern6.Offset = 25
linearpattern6.Occurrences = 4
linearpattern6.Reversed = True
body.Tip = linearpattern6

doc.recompute()
